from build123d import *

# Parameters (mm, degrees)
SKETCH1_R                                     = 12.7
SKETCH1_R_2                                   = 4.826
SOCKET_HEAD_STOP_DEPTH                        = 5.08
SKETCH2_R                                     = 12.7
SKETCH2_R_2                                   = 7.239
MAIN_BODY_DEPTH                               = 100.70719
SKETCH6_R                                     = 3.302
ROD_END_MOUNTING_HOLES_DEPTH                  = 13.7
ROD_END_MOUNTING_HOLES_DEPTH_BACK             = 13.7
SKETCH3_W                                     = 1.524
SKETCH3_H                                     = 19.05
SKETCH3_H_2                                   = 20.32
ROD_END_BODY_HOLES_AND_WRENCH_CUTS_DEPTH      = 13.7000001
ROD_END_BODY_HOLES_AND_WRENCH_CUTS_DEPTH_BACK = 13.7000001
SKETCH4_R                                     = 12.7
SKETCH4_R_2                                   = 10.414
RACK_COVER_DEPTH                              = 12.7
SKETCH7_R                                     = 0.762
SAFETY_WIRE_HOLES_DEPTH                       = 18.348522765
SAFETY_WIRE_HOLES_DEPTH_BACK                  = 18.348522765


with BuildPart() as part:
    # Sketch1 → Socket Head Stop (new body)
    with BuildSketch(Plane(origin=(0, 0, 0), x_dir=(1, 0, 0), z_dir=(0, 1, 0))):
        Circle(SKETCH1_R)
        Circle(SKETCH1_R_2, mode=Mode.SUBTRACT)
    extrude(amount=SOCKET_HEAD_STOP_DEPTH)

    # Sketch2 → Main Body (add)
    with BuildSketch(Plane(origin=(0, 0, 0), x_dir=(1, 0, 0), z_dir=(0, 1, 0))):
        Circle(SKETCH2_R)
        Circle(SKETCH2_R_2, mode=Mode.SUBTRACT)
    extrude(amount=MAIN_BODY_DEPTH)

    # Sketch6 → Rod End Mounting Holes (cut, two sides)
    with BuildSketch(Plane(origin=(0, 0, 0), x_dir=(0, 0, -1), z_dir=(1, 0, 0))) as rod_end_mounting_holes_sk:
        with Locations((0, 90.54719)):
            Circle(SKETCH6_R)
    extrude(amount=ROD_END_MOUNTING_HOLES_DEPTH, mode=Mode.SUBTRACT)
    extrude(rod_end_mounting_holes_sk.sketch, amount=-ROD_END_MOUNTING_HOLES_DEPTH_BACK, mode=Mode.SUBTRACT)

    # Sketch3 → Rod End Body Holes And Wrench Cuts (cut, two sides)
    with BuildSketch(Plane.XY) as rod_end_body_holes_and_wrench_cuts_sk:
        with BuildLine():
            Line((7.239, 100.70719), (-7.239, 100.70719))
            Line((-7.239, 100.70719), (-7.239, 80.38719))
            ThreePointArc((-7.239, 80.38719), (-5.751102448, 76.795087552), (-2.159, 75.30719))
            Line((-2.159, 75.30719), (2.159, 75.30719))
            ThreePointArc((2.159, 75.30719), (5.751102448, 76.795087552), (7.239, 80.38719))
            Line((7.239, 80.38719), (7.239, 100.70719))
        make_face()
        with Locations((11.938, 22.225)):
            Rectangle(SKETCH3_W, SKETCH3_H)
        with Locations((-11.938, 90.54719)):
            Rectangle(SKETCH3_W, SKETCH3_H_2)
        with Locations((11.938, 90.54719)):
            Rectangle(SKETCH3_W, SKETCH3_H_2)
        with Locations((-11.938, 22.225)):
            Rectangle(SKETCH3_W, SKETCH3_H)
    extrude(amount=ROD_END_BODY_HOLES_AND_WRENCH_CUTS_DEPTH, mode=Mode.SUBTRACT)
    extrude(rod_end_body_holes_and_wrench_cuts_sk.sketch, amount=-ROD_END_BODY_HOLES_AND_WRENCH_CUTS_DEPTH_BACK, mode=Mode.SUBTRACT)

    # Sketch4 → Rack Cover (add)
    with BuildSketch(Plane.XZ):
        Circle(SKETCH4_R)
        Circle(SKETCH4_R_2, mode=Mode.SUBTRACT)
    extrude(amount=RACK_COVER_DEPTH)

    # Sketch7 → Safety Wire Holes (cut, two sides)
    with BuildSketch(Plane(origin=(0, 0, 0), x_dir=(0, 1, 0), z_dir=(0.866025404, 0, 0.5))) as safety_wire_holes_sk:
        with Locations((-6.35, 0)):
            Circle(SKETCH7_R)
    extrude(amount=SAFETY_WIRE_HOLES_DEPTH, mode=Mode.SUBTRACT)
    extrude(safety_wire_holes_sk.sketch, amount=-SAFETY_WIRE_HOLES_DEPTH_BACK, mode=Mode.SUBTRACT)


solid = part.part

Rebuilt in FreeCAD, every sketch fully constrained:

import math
import FreeCAD as App
import Part
import Sketcher

V = App.Vector
Q = App.Units.Quantity


def add_polygon(sketch, points):
    """Adds a closed chain of lines whose ends are joined by coincident constraints."""
    first, n = sketch.GeometryCount, len(points)
    for a, b in zip(points, points[1:] + points[:1]):
        sketch.addGeometry(Part.LineSegment(App.Vector(*a, 0), App.Vector(*b, 0)), False)
    for i in range(n):
        sketch.addConstraint(Sketcher.Constraint("Coincident", first + i, 2, first + (i + 1) % n, 1))

doc = App.newDocument("Part")
params = doc.addObject("Spreadsheet::Sheet", "Params")
for row, (alias, value) in enumerate([
    ("sketch1_diameter", "1 in"),
    ("sketch1_diameter2", "0.38 in"),
    ("pad1_length", "0.2 in"),
    ("sketch2_diameter", "1 in"),
    ("sketch2_diameter2", "0.57 in"),
    ("pad2_length", "100.70719 mm"),
    ("sketch3_diameter", "0.26 in"),
    ("sketch4_radius", "0.2 in"),
    ("sketch4_height", "0.8 in"),
    ("sketch4_width", "0.57 in"),
    ("sketch4_width2", "0.06 in"),
    ("sketch4_height2", "0.75 in"),
    ("sketch5_diameter", "1 in"),
    ("sketch5_diameter2", "0.82 in"),
    ("pad3_length", "0.5 in"),
    ("sketch6_diameter", "0.06 in"),
], start=1):
    params.set(f"A{row}", alias)
    params.set(f"B{row}", "=" + value)
    params.setAlias(f"B{row}", alias)

body = doc.addObject("PartDesign::Body", "Body")

sketch1 = body.newObject("Sketcher::SketchObject", "Sketch")
sketch1.AttachmentSupport = (doc.getObject("XZ_Plane"), [""])
sketch1.MapMode = "FlatFace"
sketch1.addGeometry([
    Part.Circle(V(0, 0, 0), V(0, 0, 1), 12.7),
    Part.Circle(V(0, 0, 0), V(0, 0, 1), 4.8),
], False)
sketch1.addConstraint([
    Sketcher.Constraint("Coincident", 0, 3, -1, 1),
    Sketcher.Constraint("Coincident", 1, 3, -1, 1),
    Sketcher.Constraint("Diameter", 0, Q("1 in")),
    Sketcher.Constraint("Diameter", 1, Q("0.38 in")),
])
sketch1.setExpression("Constraints[2]", "Params.sketch1_diameter")
sketch1.setExpression("Constraints[3]", "Params.sketch1_diameter2")
pad1 = body.newObject("PartDesign::Pad", "Pad")
pad1.Profile = sketch1
pad1.setExpression("Length", "Params.pad1_length")
pad1.Reversed = True

sketch2 = body.newObject("Sketcher::SketchObject", "Sketch001")
sketch2.AttachmentSupport = (doc.getObject("XZ_Plane"), [""])
sketch2.MapMode = "FlatFace"
sketch2.addGeometry([
    Part.Circle(V(0, 0, 0), V(0, 0, 1), 13),
    Part.Circle(V(0, 0, 0), V(0, 0, 1), 7),
], False)
sketch2.addConstraint([
    Sketcher.Constraint("Coincident", 0, 3, -1, 1),
    Sketcher.Constraint("Coincident", 1, 3, -1, 1),
    Sketcher.Constraint("Diameter", 0, Q("1 in")),
    Sketcher.Constraint("Diameter", 1, Q("0.57 in")),
])
sketch2.setExpression("Constraints[2]", "Params.sketch2_diameter")
sketch2.setExpression("Constraints[3]", "Params.sketch2_diameter2")
pad2 = body.newObject("PartDesign::Pad", "Pad001")
pad2.Profile = sketch2
pad2.setExpression("Length", "Params.pad2_length")
pad2.Reversed = True

sketch3 = body.newObject("Sketcher::SketchObject", "Sketch002")
sketch3.AttachmentSupport = (doc.getObject("YZ_Plane"), [""])
sketch3.MapMode = "FlatFace"
sketch3.addGeometry(Part.Circle(V(90.5, 0, 0), V(0, 0, 1), 3.3), False)
sketch3.addConstraint([
    Sketcher.Constraint("PointOnObject", 0, 3, -1),
    Sketcher.Constraint("Diameter", 0, Q("0.26 in")),
    Sketcher.Constraint("DistanceX", -1, 1, 0, 3, 90.54719),
])
sketch3.setExpression("Constraints[1]", "Params.sketch3_diameter")
pocket1 = body.newObject("PartDesign::Pocket", "Pocket")
pocket1.Profile = sketch3
pocket1.Type = "ThroughAll"
pocket1.Midplane = True

sketch4 = body.newObject("Sketcher::SketchObject", "Sketch003")
sketch4.AttachmentSupport = (doc.getObject("XY_Plane"), [""])
sketch4.MapMode = "FlatFace"
sketch4.addGeometry(Part.LineSegment(V(7.2, 100.7, 0), V(-7.2, 100.7, 0)), False)
sketch4.addGeometry(Part.LineSegment(V(-7.2, 100.7, 0), V(-7.2, 80.4, 0)), False)
sketch4.addGeometry(Part.ArcOfCircle(Part.Circle(V(-2.2, 80.4, 0), V(0, 0, 1), 5.1), math.radians(-180), math.radians(-90)), False)
sketch4.addGeometry(Part.LineSegment(V(-2.2, 75.3, 0), V(2.2, 75.3, 0)), False)
sketch4.addGeometry(Part.ArcOfCircle(Part.Circle(V(2.2, 80.4, 0), V(0, 0, 1), 5.1), math.radians(-90), math.radians(0)), False)
sketch4.addGeometry(Part.LineSegment(V(7.2, 80.4, 0), V(7.2, 100.7, 0)), False)
add_polygon(sketch4, [(11.2, 31.8), (11.2, 12.7), (12.7, 12.7), (12.7, 31.8)])
add_polygon(sketch4, [(-12.7, 100.7), (-12.7, 80.4), (-11.2, 80.4), (-11.2, 100.7)])
add_polygon(sketch4, [(11.2, 100.7), (11.2, 80.4), (12.7, 80.4), (12.7, 100.7)])
add_polygon(sketch4, [(-12.7, 31.8), (-12.7, 12.7), (-11.2, 12.7), (-11.2, 31.8)])
sketch4.addConstraint([
    Sketcher.Constraint("Coincident", 0, 2, 1, 1),
    Sketcher.Constraint("Tangent", 1, 2, 2, 1),
    Sketcher.Constraint("Tangent", 2, 2, 3, 1),
    Sketcher.Constraint("Tangent", 3, 2, 4, 1),
    Sketcher.Constraint("Tangent", 4, 2, 5, 1),
    Sketcher.Constraint("Coincident", 5, 2, 0, 1),
    Sketcher.Constraint("Horizontal", 0),
    Sketcher.Constraint("Vertical", 1),
    Sketcher.Constraint("Horizontal", 3),
    Sketcher.Constraint("Vertical", 5),
    Sketcher.Constraint("Vertical", 6),
    Sketcher.Constraint("Horizontal", 7),
    Sketcher.Constraint("Vertical", 8),
    Sketcher.Constraint("Horizontal", 9),
    Sketcher.Constraint("Vertical", 10),
    Sketcher.Constraint("Horizontal", 11),
    Sketcher.Constraint("Vertical", 12),
    Sketcher.Constraint("Horizontal", 13),
    Sketcher.Constraint("Vertical", 14),
    Sketcher.Constraint("Horizontal", 15),
    Sketcher.Constraint("Vertical", 16),
    Sketcher.Constraint("Horizontal", 17),
    Sketcher.Constraint("Vertical", 18),
    Sketcher.Constraint("Horizontal", 19),
    Sketcher.Constraint("Vertical", 20),
    Sketcher.Constraint("Horizontal", 21),
    Sketcher.Constraint("Equal", 2, 4),
    Sketcher.Constraint("Symmetric", 11, 2, 14, 2, -2),
    Sketcher.Constraint("Symmetric", 13, 2, 16, 2, -2),
    Sketcher.Constraint("Symmetric", 7, 2, 18, 2, -2),
    Sketcher.Constraint("Symmetric", 9, 2, 20, 2, -2),
    Sketcher.Constraint("Horizontal", 4, 2, 10, 2),
    Sketcher.Constraint("Horizontal", 5, 2, 12, 2),
    Sketcher.Constraint("Vertical", 9, 2, 14, 2),
    Sketcher.Constraint("Vertical", 8, 2, 15, 2),
    Sketcher.Constraint("Radius", 2, Q("0.2 in")),
    Sketcher.Constraint("DistanceY", 1, 2, 1, 1, Q("0.8 in")),
    Sketcher.Constraint("DistanceX", 18, 2, 7, 2, Q("1 in")),
    Sketcher.Constraint("DistanceX", 0, 2, 0, 1, Q("0.57 in")),
    Sketcher.Constraint("DistanceX", 7, 1, 7, 2, Q("0.06 in")),
    Sketcher.Constraint("DistanceY", 6, 2, 6, 1, Q("0.75 in")),
    Sketcher.Constraint("DistanceY", -1, 1, 6, 2, Q("0.5 in")),
    Sketcher.Constraint("DistanceX", 2, 3, -1, 1, Q("0.085 in")),
    Sketcher.Constraint("DistanceY", -1, 1, 2, 3, 80.38719),
])
sketch4.setExpression("Constraints[51]", "Params.sketch4_radius")
sketch4.setExpression("Constraints[52]", "Params.sketch4_height")
sketch4.setExpression("Constraints[54]", "Params.sketch4_width")
sketch4.setExpression("Constraints[55]", "Params.sketch4_width2")
sketch4.setExpression("Constraints[56]", "Params.sketch4_height2")
pocket2 = body.newObject("PartDesign::Pocket", "Pocket001")
pocket2.Profile = sketch4
pocket2.Type = "ThroughAll"
pocket2.Midplane = True

sketch5 = body.newObject("Sketcher::SketchObject", "Sketch004")
sketch5.AttachmentSupport = (doc.getObject("XZ_Plane"), [""])
sketch5.MapMode = "FlatFace"
sketch5.addGeometry([
    Part.Circle(V(0, 0, 0), V(0, 0, 1), 13),
    Part.Circle(V(0, 0, 0), V(0, 0, 1), 10),
], False)
sketch5.addConstraint([
    Sketcher.Constraint("Coincident", 0, 3, -1, 1),
    Sketcher.Constraint("Coincident", 1, 3, -1, 1),
    Sketcher.Constraint("Diameter", 0, Q("1 in")),
    Sketcher.Constraint("Diameter", 1, Q("0.82 in")),
])
sketch5.setExpression("Constraints[2]", "Params.sketch5_diameter")
sketch5.setExpression("Constraints[3]", "Params.sketch5_diameter2")
pad3 = body.newObject("PartDesign::Pad", "Pad002")
pad3.Profile = sketch5
pad3.setExpression("Length", "Params.pad3_length")

sketch6 = body.newObject("Sketcher::SketchObject", "Sketch005")
sketch6.Placement = App.Placement(V(0, 0, 0), App.Rotation(V(0, 1, 0), V(-0.5, 0, 0.866025404), V(0.866025404, 0, 0.5), "ZXY"))
sketch6.addGeometry(Part.Circle(V(-6.3, 0, 0), V(0, 0, 1), 0.8), False)
sketch6.addConstraint([
    Sketcher.Constraint("PointOnObject", 0, 3, -1),
    Sketcher.Constraint("Diameter", 0, Q("0.06 in")),
    Sketcher.Constraint("DistanceX", 0, 3, -1, 1, Q("0.25 in")),
])
sketch6.setExpression("Constraints[1]", "Params.sketch6_diameter")
pocket3 = body.newObject("PartDesign::Pocket", "Pocket002")
pocket3.Profile = sketch6
pocket3.Type = "ThroughAll"
pocket3.Midplane = True

doc.recompute()
